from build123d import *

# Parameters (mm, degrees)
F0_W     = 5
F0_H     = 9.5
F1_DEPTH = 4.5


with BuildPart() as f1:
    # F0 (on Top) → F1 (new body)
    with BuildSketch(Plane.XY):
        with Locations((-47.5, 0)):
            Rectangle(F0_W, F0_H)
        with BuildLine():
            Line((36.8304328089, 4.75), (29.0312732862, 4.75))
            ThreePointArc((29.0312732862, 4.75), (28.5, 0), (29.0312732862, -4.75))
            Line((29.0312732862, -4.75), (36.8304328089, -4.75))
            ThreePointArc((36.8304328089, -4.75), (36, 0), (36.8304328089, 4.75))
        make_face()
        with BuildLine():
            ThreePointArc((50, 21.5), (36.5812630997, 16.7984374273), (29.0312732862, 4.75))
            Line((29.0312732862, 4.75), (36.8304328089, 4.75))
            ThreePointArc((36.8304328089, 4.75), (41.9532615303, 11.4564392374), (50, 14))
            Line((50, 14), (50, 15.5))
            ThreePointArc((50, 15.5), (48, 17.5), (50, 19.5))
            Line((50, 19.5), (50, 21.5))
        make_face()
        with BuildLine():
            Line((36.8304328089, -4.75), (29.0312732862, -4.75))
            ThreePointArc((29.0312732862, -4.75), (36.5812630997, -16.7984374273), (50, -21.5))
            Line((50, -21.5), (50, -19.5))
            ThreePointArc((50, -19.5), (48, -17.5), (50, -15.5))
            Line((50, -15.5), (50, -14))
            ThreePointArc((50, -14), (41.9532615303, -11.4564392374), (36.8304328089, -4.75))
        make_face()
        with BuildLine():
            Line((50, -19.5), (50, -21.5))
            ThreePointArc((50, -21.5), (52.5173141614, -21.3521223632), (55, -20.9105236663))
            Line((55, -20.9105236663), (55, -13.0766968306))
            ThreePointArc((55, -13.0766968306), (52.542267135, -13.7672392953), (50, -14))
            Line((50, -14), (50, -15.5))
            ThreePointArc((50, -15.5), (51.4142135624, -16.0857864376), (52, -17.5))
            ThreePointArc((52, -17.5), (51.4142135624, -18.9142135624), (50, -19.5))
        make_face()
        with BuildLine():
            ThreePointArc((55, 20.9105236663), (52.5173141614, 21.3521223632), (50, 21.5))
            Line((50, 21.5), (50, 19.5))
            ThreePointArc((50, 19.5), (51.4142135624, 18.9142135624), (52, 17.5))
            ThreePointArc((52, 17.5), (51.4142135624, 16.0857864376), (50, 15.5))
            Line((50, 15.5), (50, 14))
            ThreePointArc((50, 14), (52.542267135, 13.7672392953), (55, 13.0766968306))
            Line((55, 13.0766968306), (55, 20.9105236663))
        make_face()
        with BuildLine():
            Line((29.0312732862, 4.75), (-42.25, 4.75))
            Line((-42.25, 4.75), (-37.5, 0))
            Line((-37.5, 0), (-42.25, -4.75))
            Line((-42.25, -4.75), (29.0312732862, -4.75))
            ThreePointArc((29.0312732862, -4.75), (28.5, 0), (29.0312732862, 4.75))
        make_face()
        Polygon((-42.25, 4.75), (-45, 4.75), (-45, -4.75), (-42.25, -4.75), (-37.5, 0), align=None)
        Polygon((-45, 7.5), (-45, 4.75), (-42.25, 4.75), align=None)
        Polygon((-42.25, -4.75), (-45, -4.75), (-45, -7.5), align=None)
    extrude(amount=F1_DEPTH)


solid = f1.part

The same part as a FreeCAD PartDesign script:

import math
import FreeCAD as App
import Part
import Sketcher

V = App.Vector

doc = App.newDocument("Part")
body = doc.addObject("PartDesign::Body", "Body")

# Sketch on XY plane
sketch1 = body.newObject("Sketcher::SketchObject", "Sketch")
sketch1.AttachmentSupport = (doc.getObject("XY_Plane"), [""])
sketch1.MapMode = "FlatFace"
sketch1.addGeometry([
    Part.LineSegment(V(-50, 4.75, 0), V(-50, -4.75, 0)),  # 0
    Part.LineSegment(V(-50, -4.75, 0), V(-45, -4.75, 0)),  # 1
    Part.LineSegment(V(-45, -4.75, 0), V(-45, -7.5, 0)),  # 2
    Part.LineSegment(V(-45, -7.5, 0), V(-42.25, -4.75, 0)),  # 3
    Part.LineSegment(V(-42.25, -4.75, 0), V(29.031273, -4.75, 0)),  # 4
    Part.ArcOfCircle(Part.Circle(V(50, 0, 0), V(0, 0, 1), 21.5), math.radians(-167.236324), math.radians(-90)),  # 5
    Part.ArcOfCircle(Part.Circle(V(50, 0, 0), V(0, 0, 1), 21.5), math.radians(-90), math.radians(-76.552273)),  # 6
    Part.LineSegment(V(55, -20.910524, 0), V(55, -13.076697, 0)),  # 7
    Part.ArcOfCircle(Part.Circle(V(50, 0, 0), V(0, 0, 1), 14), math.radians(-90), math.radians(-69.075168)),  # 8
    Part.ArcOfCircle(Part.Circle(V(50, 0, 0), V(0, 0, 1), 14), math.radians(-160.166638), math.radians(-90)),  # 9
    Part.ArcOfCircle(Part.Circle(V(50, 0, 0), V(0, 0, 1), 14), math.radians(160.166638), math.radians(199.833362)),  # 10
    Part.ArcOfCircle(Part.Circle(V(50, 0, 0), V(0, 0, 1), 14), math.radians(90), math.radians(160.166638)),  # 11
    Part.ArcOfCircle(Part.Circle(V(50, 0, 0), V(0, 0, 1), 14), math.radians(69.075168), math.radians(90)),  # 12
    Part.LineSegment(V(55, 13.076697, 0), V(55, 20.910524, 0)),  # 13
    Part.ArcOfCircle(Part.Circle(V(50, 0, 0), V(0, 0, 1), 21.5), math.radians(76.552273), math.radians(90)),  # 14
    Part.ArcOfCircle(Part.Circle(V(50, 0, 0), V(0, 0, 1), 21.5), math.radians(90), math.radians(167.236324)),  # 15
    Part.LineSegment(V(29.031273, 4.75, 0), V(-42.25, 4.75, 0)),  # 16
    Part.LineSegment(V(-42.25, 4.75, 0), V(-45, 7.5, 0)),  # 17
    Part.LineSegment(V(-45, 7.5, 0), V(-45, 4.75, 0)),  # 18
    Part.LineSegment(V(-45, 4.75, 0), V(-50, 4.75, 0)),  # 19
    Part.ArcOfCircle(Part.Circle(V(50, -17.5, 0), V(0, 0, 1), 2), math.radians(-90), math.radians(0)),  # 20
    Part.ArcOfCircle(Part.Circle(V(50, -17.5, 0), V(0, 0, 1), 2), math.radians(90), math.radians(270)),  # 21
    Part.ArcOfCircle(Part.Circle(V(50, -17.5, 0), V(0, 0, 1), 2), math.radians(0), math.radians(90)),  # 22
    Part.ArcOfCircle(Part.Circle(V(50, 17.5, 0), V(0, 0, 1), 2), math.radians(90), math.radians(270)),  # 23
    Part.ArcOfCircle(Part.Circle(V(50, 17.5, 0), V(0, 0, 1), 2), math.radians(0), math.radians(90)),  # 24
    Part.ArcOfCircle(Part.Circle(V(50, 17.5, 0), V(0, 0, 1), 2), math.radians(-90), math.radians(0)),  # 25
], False)
sketch1.addConstraint([
    Sketcher.Constraint("Coincident", 0, 2, 1, 1),
    Sketcher.Constraint("Coincident", 1, 2, 2, 1),
    Sketcher.Constraint("Coincident", 2, 2, 3, 1),
    Sketcher.Constraint("Coincident", 3, 2, 4, 1),
    Sketcher.Constraint("Coincident", 4, 2, 5, 1),
    Sketcher.Constraint("Tangent", 5, 2, 6, 1),
    Sketcher.Constraint("Coincident", 6, 2, 7, 1),
    Sketcher.Constraint("Coincident", 7, 2, 8, 2),
    Sketcher.Constraint("Tangent", 8, 1, 9, 2),
    Sketcher.Constraint("Tangent", 9, 1, 10, 2),
    Sketcher.Constraint("Tangent", 10, 1, 11, 2),
    Sketcher.Constraint("Tangent", 11, 1, 12, 2),
    Sketcher.Constraint("Coincident", 12, 1, 13, 1),
    Sketcher.Constraint("Coincident", 13, 2, 14, 1),
    Sketcher.Constraint("Tangent", 14, 2, 15, 1),
    Sketcher.Constraint("Coincident", 15, 2, 16, 1),
    Sketcher.Constraint("Coincident", 16, 2, 17, 1),
    Sketcher.Constraint("Coincident", 17, 2, 18, 1),
    Sketcher.Constraint("Coincident", 18, 2, 19, 1),
    Sketcher.Constraint("Coincident", 19, 2, 0, 1),
    Sketcher.Constraint("Tangent", 20, 1, 21, 2),
    Sketcher.Constraint("Tangent", 21, 1, 22, 2),
    Sketcher.Constraint("Tangent", 22, 1, 20, 2),
    Sketcher.Constraint("Tangent", 23, 1, 24, 2),
    Sketcher.Constraint("Tangent", 24, 1, 25, 2),
    Sketcher.Constraint("Tangent", 25, 1, 23, 2),
    Sketcher.Constraint("Vertical", 0),
    Sketcher.Constraint("Horizontal", 1),
    Sketcher.Constraint("Vertical", 2),
    Sketcher.Constraint("Horizontal", 4),
    Sketcher.Constraint("Vertical", 7),
    Sketcher.Constraint("Vertical", 13),
    Sketcher.Constraint("Horizontal", 16),
    Sketcher.Constraint("Vertical", 18),
    Sketcher.Constraint("Horizontal", 19),
    Sketcher.Constraint("Coincident", 8, 3, 5, 3),
    Sketcher.Constraint("Coincident", 10, 3, 5, 3),
    Sketcher.Constraint("Coincident", 12, 3, 5, 3),
    Sketcher.Constraint("Coincident", 14, 3, 5, 3),
    Sketcher.Constraint("Equal", 5, 6),
    Sketcher.Constraint("Equal", 6, 14),
    Sketcher.Constraint("Equal", 14, 15),
    Sketcher.Constraint("Equal", 22, 23),
    Sketcher.Constraint("Symmetric", 20, 3, 23, 3, -1),
    Sketcher.Constraint("Symmetric", 9, 1, 10, 1, -1),
    Sketcher.Constraint("Symmetric", 3, 2, 16, 2, -1),
    Sketcher.Constraint("Symmetric", 2, 2, 17, 2, -1),
    Sketcher.Constraint("Perpendicular", 3, 17),
    Sketcher.Constraint("Horizontal", 1, 2, 3, 2),
    Sketcher.Constraint("Horizontal", 4, 2, 9, 1),
    Sketcher.Constraint("Horizontal", 16, 2, 18, 2),
    Sketcher.Constraint("Horizontal", 21, 3, 22, 1),
    Sketcher.Constraint("Horizontal", 25, 3, 24, 1),
    Sketcher.Constraint("Vertical", 15, 3, 20, 3),
    Sketcher.Constraint("Vertical", 25, 3, 5, 2),
    Sketcher.Constraint("Vertical", 5, 2, 8, 1),
    Sketcher.Constraint("Vertical", 8, 1, 11, 1),
    Sketcher.Constraint("Vertical", 7, 2, 12, 1),
    Sketcher.Constraint("Vertical", 11, 1, 14, 2),
    Sketcher.Constraint("Vertical", 14, 2, 20, 1),
    Sketcher.Constraint("Vertical", 20, 1, 21, 1),
    Sketcher.Constraint("Vertical", 21, 1, 23, 1),
    Sketcher.Constraint("Vertical", 23, 1, 25, 1),
    Sketcher.Constraint("Radius", 8, 14.0),
    Sketcher.Constraint("Radius", 20, 2.0),
    Sketcher.Constraint("Radius", 5, 21.5),
    Sketcher.Constraint("DistanceX", 1, 1, 1, 2, 5.0),
    Sketcher.Constraint("DistanceY", 0, 2, 0, 1, 9.5),
    Sketcher.Constraint("DistanceX", -1, 1, 5, 3, 50.0),
    Sketcher.Constraint("DistanceX", 0, 2, -1, 1, 50.0),
    Sketcher.Constraint("DistanceX", -1, 1, 6, 2, 55.0),
    Sketcher.Constraint("DistanceY", 5, 2, 20, 3, 4.0),
    Sketcher.Constraint("DistanceY", 2, 2, 17, 2, 15.0),
])
pad1 = body.newObject("PartDesign::Pad", "Pad")
pad1.Profile = sketch1
pad1.Length = 4.5

doc.recompute()
